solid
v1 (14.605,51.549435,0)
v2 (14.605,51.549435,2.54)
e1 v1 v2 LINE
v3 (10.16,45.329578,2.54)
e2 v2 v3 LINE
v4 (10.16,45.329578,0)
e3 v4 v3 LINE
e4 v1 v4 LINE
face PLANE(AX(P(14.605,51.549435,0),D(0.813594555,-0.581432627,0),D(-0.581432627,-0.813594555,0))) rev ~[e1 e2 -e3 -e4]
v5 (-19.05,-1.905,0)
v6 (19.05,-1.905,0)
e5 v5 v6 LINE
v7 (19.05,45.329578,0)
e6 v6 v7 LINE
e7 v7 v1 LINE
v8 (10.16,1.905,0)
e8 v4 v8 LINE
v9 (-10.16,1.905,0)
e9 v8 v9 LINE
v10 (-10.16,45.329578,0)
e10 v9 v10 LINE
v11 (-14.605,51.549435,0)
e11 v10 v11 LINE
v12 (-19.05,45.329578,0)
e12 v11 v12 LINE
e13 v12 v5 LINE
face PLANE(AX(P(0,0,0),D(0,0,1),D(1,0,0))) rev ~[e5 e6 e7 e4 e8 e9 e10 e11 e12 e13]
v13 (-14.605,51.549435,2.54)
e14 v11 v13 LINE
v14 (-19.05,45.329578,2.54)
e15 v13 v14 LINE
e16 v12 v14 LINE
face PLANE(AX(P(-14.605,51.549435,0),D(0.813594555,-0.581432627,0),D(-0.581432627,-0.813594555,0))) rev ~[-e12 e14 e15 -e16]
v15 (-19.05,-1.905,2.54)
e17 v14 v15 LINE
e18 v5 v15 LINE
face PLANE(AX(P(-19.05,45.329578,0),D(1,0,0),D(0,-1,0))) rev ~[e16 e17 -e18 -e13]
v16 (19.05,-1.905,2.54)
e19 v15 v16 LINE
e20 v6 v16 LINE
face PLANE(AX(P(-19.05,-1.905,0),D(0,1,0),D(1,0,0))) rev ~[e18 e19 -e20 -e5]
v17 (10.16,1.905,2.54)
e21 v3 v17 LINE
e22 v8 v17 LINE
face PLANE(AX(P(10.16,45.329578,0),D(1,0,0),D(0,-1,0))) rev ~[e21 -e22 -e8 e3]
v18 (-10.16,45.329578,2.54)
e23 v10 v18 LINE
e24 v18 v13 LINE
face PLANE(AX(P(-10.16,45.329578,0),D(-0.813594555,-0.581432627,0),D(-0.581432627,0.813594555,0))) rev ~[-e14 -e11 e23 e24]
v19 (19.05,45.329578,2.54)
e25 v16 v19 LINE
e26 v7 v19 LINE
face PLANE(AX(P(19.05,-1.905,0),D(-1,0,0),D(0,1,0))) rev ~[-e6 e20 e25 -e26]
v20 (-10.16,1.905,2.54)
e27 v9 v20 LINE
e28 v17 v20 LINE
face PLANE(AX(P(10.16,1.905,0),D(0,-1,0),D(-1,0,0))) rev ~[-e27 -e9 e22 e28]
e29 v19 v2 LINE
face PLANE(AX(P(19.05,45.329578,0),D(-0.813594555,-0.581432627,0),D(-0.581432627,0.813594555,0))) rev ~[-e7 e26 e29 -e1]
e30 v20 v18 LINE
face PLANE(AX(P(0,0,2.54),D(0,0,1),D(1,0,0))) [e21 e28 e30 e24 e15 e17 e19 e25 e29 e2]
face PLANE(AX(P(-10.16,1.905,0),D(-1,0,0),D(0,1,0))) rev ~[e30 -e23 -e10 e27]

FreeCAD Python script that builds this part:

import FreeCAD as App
import Part
import Sketcher
from FreeCAD import Vector
Q = App.Units.Quantity

doc = App.newDocument("Part")
params = doc.addObject("Spreadsheet::Sheet", "Params")
for row, (alias, value) in enumerate([
    ("sketch1_width", "0.8 in"),
    ("sketch1_width2", "1.5 in"),
    ("pad1_length", "0.1 in"),
], start=1):
    params.set(f"A{row}", alias)
    params.set(f"B{row}", "=" + value)
    params.setAlias(f"B{row}", alias)

body = doc.addObject("PartDesign::Body", "Body")

sketch1 = body.newObject("Sketcher::SketchObject", "Sketch")
sketch1.AttachmentSupport = (doc.getObject("XY_Plane"), [""])
sketch1.MapMode = "FlatFace"
sketch1.addGeometry(Part.LineSegment(Vector(19.05, -1.905, 0), Vector(19.05, 45.329578, 0)), False)
sketch1.addGeometry(Part.LineSegment(Vector(19.05, 45.329578, 0), Vector(14.605, 51.549435, 0)), False)
sketch1.addGeometry(Part.LineSegment(Vector(14.605, 51.549435, 0), Vector(10.16, 45.329578, 0)), False)
sketch1.addGeometry(Part.LineSegment(Vector(10.16, 45.329578, 0), Vector(10.16, 1.905, 0)), False)
sketch1.addGeometry(Part.LineSegment(Vector(10.16, 1.905, 0), Vector(-10.16, 1.905, 0)), False)
sketch1.addGeometry(Part.LineSegment(Vector(-10.16, 1.905, 0), Vector(-10.16, 45.329578, 0)), False)
sketch1.addGeometry(Part.LineSegment(Vector(-10.16, 45.329578, 0), Vector(-14.605, 51.549435, 0)), False)
sketch1.addGeometry(Part.LineSegment(Vector(-14.605, 51.549435, 0), Vector(-19.05, 45.329578, 0)), False)
sketch1.addGeometry(Part.LineSegment(Vector(-19.05, 45.329578, 0), Vector(-19.05, -1.905, 0)), False)
sketch1.addGeometry(Part.LineSegment(Vector(-19.05, -1.905, 0), Vector(19.05, -1.905, 0)), False)
sketch1.addConstraint(Sketcher.Constraint("Coincident", 0, 2, 1, 1))
sketch1.addConstraint(Sketcher.Constraint("Coincident", 1, 2, 2, 1))
sketch1.addConstraint(Sketcher.Constraint("Coincident", 2, 2, 3, 1))
sketch1.addConstraint(Sketcher.Constraint("Coincident", 3, 2, 4, 1))
sketch1.addConstraint(Sketcher.Constraint("Coincident", 4, 2, 5, 1))
sketch1.addConstraint(Sketcher.Constraint("Coincident", 5, 2, 6, 1))
sketch1.addConstraint(Sketcher.Constraint("Coincident", 6, 2, 7, 1))
sketch1.addConstraint(Sketcher.Constraint("Coincident", 7, 2, 8, 1))
sketch1.addConstraint(Sketcher.Constraint("Coincident", 8, 2, 9, 1))
sketch1.addConstraint(Sketcher.Constraint("Coincident", 9, 2, 0, 1))
sketch1.addConstraint(Sketcher.Constraint("Vertical", 0))
sketch1.addConstraint(Sketcher.Constraint("Vertical", 3))
sketch1.addConstraint(Sketcher.Constraint("Horizontal", 4))
sketch1.addConstraint(Sketcher.Constraint("Vertical", 5))
sketch1.addConstraint(Sketcher.Constraint("Vertical", 8))
sketch1.addConstraint(Sketcher.Constraint("Horizontal", 9))
sketch1.addConstraint(Sketcher.Constraint("Symmetric", 2, 2, 5, 2, -2))
sketch1.addConstraint(Sketcher.Constraint("Symmetric", 1, 2, 6, 2, -2))
sketch1.addConstraint(Sketcher.Constraint("Symmetric", 0, 2, 7, 2, -2))
sketch1.addConstraint(Sketcher.Constraint("Parallel", 1, 6))
sketch1.addConstraint(Sketcher.Constraint("Horizontal", 0, 2, 2, 2))
sketch1.addConstraint(Sketcher.Constraint("DistanceX", 4, 2, 4, 1, Q("0.8 in")))
sketch1.addConstraint(Sketcher.Constraint("DistanceX", 9, 1, 9, 2, Q("1.5 in")))
sketch1.addConstraint(Sketcher.Constraint("DistanceY", 8, 2, 4, 2, Q("0.15 in")))
sketch1.addConstraint(Sketcher.Constraint("DistanceY", -1, 1, 3, 2, Q("0.075 in")))
sketch1.addConstraint(Sketcher.Constraint("Distance", 1, Q("7.64491 mm")))
sketch1.addConstraint(Sketcher.Constraint("DistanceY", 0, 1, 0, 2, Q("47.234578 mm")))
sketch1.setExpression("Constraints[21]", "Params.sketch1_width")
sketch1.setExpression("Constraints[22]", "Params.sketch1_width2")
pad1 = body.newObject("PartDesign::Pad", "Pad")
pad1.Profile = sketch1
pad1.setExpression("Length", "Params.pad1_length")

doc.recompute()
